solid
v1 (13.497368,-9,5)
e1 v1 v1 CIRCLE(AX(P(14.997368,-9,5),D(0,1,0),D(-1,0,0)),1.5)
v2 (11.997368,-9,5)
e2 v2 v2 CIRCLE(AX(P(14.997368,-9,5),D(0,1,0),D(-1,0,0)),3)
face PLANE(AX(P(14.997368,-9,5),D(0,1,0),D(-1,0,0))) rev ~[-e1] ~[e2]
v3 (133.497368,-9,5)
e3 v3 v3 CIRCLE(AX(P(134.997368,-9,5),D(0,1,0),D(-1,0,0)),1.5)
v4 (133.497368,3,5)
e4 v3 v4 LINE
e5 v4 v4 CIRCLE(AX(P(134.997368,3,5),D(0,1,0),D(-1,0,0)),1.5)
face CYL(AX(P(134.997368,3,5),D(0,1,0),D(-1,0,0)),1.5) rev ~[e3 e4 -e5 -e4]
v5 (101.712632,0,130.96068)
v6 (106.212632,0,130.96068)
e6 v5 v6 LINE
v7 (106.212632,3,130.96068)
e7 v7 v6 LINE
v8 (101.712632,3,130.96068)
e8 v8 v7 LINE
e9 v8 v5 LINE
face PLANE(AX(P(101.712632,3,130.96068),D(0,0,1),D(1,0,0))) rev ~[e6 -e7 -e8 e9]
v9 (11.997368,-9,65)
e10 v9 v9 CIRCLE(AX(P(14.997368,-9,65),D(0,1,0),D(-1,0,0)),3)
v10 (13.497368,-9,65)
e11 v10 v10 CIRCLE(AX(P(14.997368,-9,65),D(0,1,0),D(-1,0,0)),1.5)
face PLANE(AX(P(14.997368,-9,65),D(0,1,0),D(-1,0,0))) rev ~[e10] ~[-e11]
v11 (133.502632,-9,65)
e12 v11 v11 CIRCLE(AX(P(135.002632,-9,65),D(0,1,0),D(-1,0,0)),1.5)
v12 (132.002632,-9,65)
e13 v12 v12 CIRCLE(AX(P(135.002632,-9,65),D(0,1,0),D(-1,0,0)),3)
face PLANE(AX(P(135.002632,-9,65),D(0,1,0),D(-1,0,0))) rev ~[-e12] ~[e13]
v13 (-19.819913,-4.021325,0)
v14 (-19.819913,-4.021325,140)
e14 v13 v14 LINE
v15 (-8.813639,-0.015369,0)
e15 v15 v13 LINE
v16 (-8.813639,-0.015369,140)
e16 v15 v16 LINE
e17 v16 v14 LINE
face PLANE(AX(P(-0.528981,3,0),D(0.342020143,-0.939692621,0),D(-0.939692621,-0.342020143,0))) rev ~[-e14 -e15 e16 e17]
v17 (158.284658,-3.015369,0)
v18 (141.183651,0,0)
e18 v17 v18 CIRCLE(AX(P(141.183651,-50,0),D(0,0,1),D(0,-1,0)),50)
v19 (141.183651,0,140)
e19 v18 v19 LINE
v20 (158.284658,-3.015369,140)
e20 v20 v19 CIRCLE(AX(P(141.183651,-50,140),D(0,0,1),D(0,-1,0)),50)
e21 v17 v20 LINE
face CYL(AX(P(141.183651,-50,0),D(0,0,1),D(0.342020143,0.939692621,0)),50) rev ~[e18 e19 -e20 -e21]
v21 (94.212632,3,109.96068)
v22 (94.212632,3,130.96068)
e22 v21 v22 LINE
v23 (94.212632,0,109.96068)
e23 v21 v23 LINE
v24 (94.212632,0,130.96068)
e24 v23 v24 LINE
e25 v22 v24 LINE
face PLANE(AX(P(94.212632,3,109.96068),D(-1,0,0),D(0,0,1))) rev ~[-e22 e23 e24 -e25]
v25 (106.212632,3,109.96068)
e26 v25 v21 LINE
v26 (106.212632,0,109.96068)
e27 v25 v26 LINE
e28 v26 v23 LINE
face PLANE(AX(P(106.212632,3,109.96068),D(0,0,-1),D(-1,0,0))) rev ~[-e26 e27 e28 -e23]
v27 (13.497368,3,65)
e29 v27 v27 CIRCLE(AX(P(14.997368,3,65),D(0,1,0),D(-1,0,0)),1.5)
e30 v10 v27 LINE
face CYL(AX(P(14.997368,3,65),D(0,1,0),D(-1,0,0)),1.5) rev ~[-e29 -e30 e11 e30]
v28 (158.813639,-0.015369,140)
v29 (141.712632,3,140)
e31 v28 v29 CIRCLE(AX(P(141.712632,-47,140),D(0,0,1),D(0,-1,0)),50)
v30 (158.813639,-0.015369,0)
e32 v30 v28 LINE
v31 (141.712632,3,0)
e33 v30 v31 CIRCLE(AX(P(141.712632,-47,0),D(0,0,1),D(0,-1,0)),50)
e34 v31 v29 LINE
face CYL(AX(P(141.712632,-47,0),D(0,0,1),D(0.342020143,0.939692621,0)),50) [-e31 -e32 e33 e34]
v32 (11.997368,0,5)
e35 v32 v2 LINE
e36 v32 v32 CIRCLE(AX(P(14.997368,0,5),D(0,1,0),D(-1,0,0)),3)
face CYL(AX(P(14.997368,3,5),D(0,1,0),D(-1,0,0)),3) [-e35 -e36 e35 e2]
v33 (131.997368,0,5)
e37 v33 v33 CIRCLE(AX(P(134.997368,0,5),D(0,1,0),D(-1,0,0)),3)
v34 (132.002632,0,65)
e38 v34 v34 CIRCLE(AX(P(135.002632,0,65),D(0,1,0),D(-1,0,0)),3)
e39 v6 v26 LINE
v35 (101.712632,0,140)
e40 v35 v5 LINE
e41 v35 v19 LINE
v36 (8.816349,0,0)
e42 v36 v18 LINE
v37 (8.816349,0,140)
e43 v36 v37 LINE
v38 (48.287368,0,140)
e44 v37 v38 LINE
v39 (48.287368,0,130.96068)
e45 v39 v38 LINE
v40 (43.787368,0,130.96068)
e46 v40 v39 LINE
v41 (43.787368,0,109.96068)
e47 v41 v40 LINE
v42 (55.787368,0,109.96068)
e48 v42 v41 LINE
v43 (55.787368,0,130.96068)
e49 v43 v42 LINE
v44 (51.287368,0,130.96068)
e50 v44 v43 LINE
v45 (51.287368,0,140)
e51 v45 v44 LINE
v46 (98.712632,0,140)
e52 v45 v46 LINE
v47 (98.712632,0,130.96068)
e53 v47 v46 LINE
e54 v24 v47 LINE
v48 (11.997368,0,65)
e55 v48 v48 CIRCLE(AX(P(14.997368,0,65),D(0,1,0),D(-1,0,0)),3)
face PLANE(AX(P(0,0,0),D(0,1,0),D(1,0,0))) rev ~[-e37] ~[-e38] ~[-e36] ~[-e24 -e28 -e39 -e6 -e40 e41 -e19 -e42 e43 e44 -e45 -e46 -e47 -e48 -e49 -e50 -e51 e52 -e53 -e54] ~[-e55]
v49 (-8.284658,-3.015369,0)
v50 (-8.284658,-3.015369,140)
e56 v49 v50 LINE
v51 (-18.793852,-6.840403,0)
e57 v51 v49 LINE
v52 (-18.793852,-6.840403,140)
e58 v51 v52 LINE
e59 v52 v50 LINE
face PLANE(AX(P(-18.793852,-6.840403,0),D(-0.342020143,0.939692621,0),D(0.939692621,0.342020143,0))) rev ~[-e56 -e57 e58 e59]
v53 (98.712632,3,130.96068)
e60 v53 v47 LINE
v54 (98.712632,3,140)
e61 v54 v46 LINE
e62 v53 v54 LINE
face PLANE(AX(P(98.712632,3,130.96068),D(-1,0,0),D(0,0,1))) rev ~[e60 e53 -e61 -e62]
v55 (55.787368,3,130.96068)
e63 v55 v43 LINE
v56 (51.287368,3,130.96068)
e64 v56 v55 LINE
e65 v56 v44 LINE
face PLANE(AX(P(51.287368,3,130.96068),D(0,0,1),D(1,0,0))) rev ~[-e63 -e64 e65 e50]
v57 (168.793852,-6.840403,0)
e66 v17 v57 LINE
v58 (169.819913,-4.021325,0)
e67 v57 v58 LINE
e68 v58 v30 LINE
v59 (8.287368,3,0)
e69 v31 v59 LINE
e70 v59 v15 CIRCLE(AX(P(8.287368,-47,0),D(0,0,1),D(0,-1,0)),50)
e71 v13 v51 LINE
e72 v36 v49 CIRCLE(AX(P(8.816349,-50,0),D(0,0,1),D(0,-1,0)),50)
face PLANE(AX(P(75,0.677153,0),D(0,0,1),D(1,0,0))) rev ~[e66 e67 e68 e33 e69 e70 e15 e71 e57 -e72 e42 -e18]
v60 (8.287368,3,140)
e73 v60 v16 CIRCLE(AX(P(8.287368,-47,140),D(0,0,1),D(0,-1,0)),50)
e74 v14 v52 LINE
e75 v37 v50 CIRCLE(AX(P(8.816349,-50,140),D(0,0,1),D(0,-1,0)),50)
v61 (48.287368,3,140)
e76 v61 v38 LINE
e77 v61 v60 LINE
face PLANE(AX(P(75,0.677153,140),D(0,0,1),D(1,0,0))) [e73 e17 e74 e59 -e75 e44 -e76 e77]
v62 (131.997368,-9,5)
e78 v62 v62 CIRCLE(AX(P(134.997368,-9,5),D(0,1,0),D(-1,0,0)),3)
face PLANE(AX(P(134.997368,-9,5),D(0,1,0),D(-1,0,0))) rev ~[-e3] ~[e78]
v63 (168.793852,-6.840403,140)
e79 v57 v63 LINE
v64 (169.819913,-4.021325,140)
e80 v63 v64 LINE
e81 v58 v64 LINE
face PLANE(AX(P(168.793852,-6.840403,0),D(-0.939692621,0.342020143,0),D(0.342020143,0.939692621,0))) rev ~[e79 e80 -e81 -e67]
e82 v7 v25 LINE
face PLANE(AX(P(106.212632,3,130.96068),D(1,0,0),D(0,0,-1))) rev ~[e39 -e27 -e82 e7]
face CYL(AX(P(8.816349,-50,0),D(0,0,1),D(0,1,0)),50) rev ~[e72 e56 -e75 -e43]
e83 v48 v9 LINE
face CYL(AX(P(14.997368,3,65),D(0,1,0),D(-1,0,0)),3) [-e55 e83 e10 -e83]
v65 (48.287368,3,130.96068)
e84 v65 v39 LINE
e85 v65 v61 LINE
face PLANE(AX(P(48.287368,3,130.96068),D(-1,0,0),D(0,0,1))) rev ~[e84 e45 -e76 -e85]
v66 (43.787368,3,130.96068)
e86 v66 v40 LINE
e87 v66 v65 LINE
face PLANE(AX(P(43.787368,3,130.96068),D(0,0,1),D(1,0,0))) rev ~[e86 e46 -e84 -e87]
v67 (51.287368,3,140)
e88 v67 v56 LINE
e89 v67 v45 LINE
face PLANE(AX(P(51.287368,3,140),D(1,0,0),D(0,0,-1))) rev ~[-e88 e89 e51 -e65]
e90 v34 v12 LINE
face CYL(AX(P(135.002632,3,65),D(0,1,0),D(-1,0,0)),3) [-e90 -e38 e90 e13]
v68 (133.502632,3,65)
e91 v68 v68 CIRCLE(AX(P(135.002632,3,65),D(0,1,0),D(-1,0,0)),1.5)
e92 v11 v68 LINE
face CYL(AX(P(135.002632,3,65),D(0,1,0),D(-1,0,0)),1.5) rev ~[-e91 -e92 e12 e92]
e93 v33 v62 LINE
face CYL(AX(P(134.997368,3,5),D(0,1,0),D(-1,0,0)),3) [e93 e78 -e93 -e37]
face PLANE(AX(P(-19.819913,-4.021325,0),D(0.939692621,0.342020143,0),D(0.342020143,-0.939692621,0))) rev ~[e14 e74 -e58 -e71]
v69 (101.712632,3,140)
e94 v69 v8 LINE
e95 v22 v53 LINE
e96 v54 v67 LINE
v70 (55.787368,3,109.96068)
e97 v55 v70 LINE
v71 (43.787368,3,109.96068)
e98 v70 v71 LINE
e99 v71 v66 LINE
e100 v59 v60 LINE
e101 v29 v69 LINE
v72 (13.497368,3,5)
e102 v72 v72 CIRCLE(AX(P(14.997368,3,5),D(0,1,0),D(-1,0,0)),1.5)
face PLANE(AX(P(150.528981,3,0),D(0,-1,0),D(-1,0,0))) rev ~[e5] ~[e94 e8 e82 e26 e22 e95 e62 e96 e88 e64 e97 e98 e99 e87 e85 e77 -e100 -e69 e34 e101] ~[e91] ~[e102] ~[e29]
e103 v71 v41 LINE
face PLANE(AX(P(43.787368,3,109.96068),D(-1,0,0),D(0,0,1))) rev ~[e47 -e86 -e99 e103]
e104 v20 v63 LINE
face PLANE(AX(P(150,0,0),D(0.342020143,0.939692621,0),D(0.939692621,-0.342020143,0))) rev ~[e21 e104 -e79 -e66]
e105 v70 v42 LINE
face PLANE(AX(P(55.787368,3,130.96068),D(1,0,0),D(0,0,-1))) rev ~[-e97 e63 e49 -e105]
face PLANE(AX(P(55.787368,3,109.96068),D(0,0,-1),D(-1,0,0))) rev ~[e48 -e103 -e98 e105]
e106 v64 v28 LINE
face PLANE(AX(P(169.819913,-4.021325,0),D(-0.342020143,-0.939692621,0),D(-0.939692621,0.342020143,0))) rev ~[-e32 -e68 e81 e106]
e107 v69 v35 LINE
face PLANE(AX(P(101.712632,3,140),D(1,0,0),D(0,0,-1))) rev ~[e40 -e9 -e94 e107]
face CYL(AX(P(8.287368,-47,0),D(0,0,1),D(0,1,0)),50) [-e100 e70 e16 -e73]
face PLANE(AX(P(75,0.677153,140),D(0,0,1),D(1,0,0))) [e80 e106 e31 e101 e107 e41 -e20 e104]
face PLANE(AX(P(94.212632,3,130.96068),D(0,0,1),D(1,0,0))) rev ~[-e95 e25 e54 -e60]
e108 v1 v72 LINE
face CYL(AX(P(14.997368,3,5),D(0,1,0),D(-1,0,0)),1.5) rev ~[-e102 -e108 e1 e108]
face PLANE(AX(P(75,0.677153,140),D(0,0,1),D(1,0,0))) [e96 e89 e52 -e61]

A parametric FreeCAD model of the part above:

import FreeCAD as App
import Part
import Sketcher
Q = App.Units.Quantity


def edges_at(feature, points):
    """Names of the edges that pass closest to the given points."""
    edges = feature.Shape.Edges
    near = lambda p: min(range(len(edges)), key=lambda i: edges[i].distToShape(Part.Vertex(*p))[0])
    return sorted({f"Edge{near(p) + 1}" for p in points})


def add_polygon(sketch, points):
    """Adds a closed chain of lines whose ends are joined by coincident constraints."""
    first, n = sketch.GeometryCount, len(points)
    for a, b in zip(points, points[1:] + points[:1]):
        sketch.addGeometry(Part.LineSegment(App.Vector(*a, 0), App.Vector(*b, 0)), False)
    for i in range(n):
        sketch.addConstraint(Sketcher.Constraint("Coincident", first + i, 2, first + (i + 1) % n, 1))

doc = App.newDocument("Part")
params = doc.addObject("Spreadsheet::Sheet", "Params")
for row, (alias, value) in enumerate([
    ("sketch1_width", "150 mm"),
    ("sketch1_length", "20 mm"),
    ("sketch1_length2", "3 mm"),
    ("pad1_length", "140 mm"),
    ("fillet_radius", "50 mm"),
    ("fillet2_radius", "50 mm"),
    ("sketch2_width", "12 mm"),
    ("sketch2_width2", "3 mm"),
    ("sketch2_height", "21 mm"),
    ("pocket1_length", "150 mm"),
    ("sketch3_diameter", "3 mm"),
    ("pocket2_length", "10 mm"),
    ("sketch4_diameter", "6 mm"),
    ("sketch4_diameter2", "3 mm"),
    ("pad2_length", "12 mm"),
], start=1):
    params.set(f"A{row}", alias)
    params.set(f"B{row}", "=" + value)
    params.setAlias(f"B{row}", alias)

body = doc.addObject("PartDesign::Body", "Body")

sketch1 = body.newObject("Sketcher::SketchObject", "Sketch")
sketch1.AttachmentSupport = (doc.getObject("XY_Plane"), [""])
sketch1.MapMode = "FlatFace"
add_polygon(sketch1, [(0, 0), (150, 0), (168.8, -6.8), (169.8, -4), (150.5, 3), (-0.5, 3), (-19.8, -4), (-18.8, -6.8)])
sketch1.addConstraint([
    Sketcher.Constraint("Horizontal", 0),
    Sketcher.Constraint("Horizontal", 4),
    Sketcher.Constraint("Coincident", 7, 2, -1, 1),
    Sketcher.Constraint("Perpendicular", 1, 2),
    Sketcher.Constraint("Perpendicular", 2, 3),
    Sketcher.Constraint("Perpendicular", 5, 6),
    Sketcher.Constraint("Perpendicular", 6, 7),
    Sketcher.Constraint("Horizontal", 2, 2, 5, 2),
    Sketcher.Constraint("Horizontal", 1, 2, 6, 2),
    Sketcher.Constraint("Equal", 3, 5),
    Sketcher.Constraint("DistanceX", 0, 1, 0, 2, 150.0),
    Sketcher.Constraint("Angle", 1, Q("-20 deg")),
    Sketcher.Constraint("Distance", 1, 20.0),
    Sketcher.Constraint("Distance", 2, 3.0),
    Sketcher.Constraint("DistanceY", -1, 1, 3, 2, 3.0),
])
sketch1.setExpression("Constraints[18]", "Params.sketch1_width")
sketch1.setExpression("Constraints[20]", "Params.sketch1_length")
sketch1.setExpression("Constraints[21]", "Params.sketch1_length2")
pad1 = body.newObject("PartDesign::Pad", "Pad")
pad1.Profile = sketch1
pad1.setExpression("Length", "Params.pad1_length")
doc.recompute()

fillet = body.newObject("PartDesign::Fillet", "Fillet")
fillet.Base = (pad1, edges_at(pad1, [(-0.529, 3, 70), (150.529, 3, 70)]))
fillet.setExpression("Radius", "Params.fillet_radius")
doc.recompute()

fillet2 = body.newObject("PartDesign::Fillet", "Fillet001")
fillet2.Base = (fillet, edges_at(fillet, [(150, 0, 70), (0, 0, 70)]))
fillet2.setExpression("Radius", "Params.fillet2_radius")

sketch2 = body.newObject("Sketcher::SketchObject", "Sketch001")
sketch2.AttachmentSupport = (doc.getObject("XZ_Plane"), [""])
sketch2.MapMode = "FlatFace"
sketch2.AttachmentOffset = App.Placement(App.Vector(0, 0, -3), App.Rotation())
add_polygon(sketch2, [(101.7, 140), (101.7, 131), (106.2, 131), (106.2, 110), (94.2, 110), (94.2, 131), (98.7, 131), (98.7, 140)])
add_polygon(sketch2, [(51.3, 140), (51.3, 131), (55.8, 131), (55.8, 110), (43.8, 110), (43.8, 131), (48.3, 131), (48.3, 140)])
sketch2.addConstraint([
    Sketcher.Constraint("Vertical", 0),
    Sketcher.Constraint("Horizontal", 1),
    Sketcher.Constraint("Vertical", 2),
    Sketcher.Constraint("Horizontal", 3),
    Sketcher.Constraint("Vertical", 4),
    Sketcher.Constraint("Horizontal", 5),
    Sketcher.Constraint("Vertical", 6),
    Sketcher.Constraint("Horizontal", 7),
    Sketcher.Constraint("Vertical", 8),
    Sketcher.Constraint("Horizontal", 9),
    Sketcher.Constraint("Vertical", 10),
    Sketcher.Constraint("Horizontal", 11),
    Sketcher.Constraint("Vertical", 12),
    Sketcher.Constraint("Horizontal", 13),
    Sketcher.Constraint("Vertical", 14),
    Sketcher.Constraint("Horizontal", 15),
    Sketcher.Constraint("Horizontal", 1, 2, 4, 2),
    Sketcher.Constraint("Horizontal", 5, 2, 8, 2),
    Sketcher.Constraint("Horizontal", 3, 2, 10, 2),
    Sketcher.Constraint("Horizontal", 9, 2, 12, 2),
    Sketcher.Constraint("Horizontal", 7, 2, 14, 2),
    Sketcher.Constraint("Equal", 1, 5),
    Sketcher.Constraint("Equal", 5, 9),
    Sketcher.Constraint("Equal", 3, 11),
    Sketcher.Constraint("Equal", 9, 13),
    Sketcher.Constraint("DistanceX", 3, 2, 3, 1, 12.0),
    Sketcher.Constraint("DistanceX", 7, 1, 7, 2, 3.0),
    Sketcher.Constraint("DistanceY", 2, 2, 2, 1, 21.0),
    Sketcher.Constraint("DistanceY", -1, 1, 6, 2, 140.0),
    Sketcher.Constraint("DistanceY", 0, 2, 0, 1, 9.03932),
    Sketcher.Constraint("DistanceX", -1, 1, 0, 2, 101.712632),
    Sketcher.Constraint("DistanceX", -1, 1, 8, 2, 51.287368),
])
sketch2.setExpression("Constraints[41]", "Params.sketch2_width")
sketch2.setExpression("Constraints[42]", "Params.sketch2_width2")
sketch2.setExpression("Constraints[43]", "Params.sketch2_height")
pocket1 = body.newObject("PartDesign::Pocket", "Pocket")
pocket1.Profile = sketch2
pocket1.setExpression("Length", "Params.pocket1_length")
pocket1.Reversed = True

sketch3 = body.newObject("Sketcher::SketchObject", "Sketch002")
sketch3.AttachmentSupport = (doc.getObject("XZ_Plane"), [""])
sketch3.MapMode = "FlatFace"
sketch3.AttachmentOffset = App.Placement(App.Vector(0, 0, -3), App.Rotation())
sketch3.addGeometry([
    Part.Circle(App.Vector(135, 5, 0), App.Vector(0, 0, 1), 1.5),
    Part.Circle(App.Vector(15, 5, 0), App.Vector(0, 0, 1), 1.5),
    Part.Circle(App.Vector(135, 65, 0), App.Vector(0, 0, 1), 1.5),
    Part.Circle(App.Vector(15, 65, 0), App.Vector(0, 0, 1), 1.5),
], False)
sketch3.addConstraint([
    Sketcher.Constraint("Equal", 0, 1),
    Sketcher.Constraint("Equal", 1, 2),
    Sketcher.Constraint("Equal", 2, 3),
    Sketcher.Constraint("Horizontal", 0, 3, 1, 3),
    Sketcher.Constraint("Horizontal", 2, 3, 3, 3),
    Sketcher.Constraint("Vertical", 1, 3, 3, 3),
    Sketcher.Constraint("Diameter", 0, 3.0),
    Sketcher.Constraint("DistanceY", -1, 1, 0, 3, 5.0),
    Sketcher.Constraint("DistanceY", -1, 1, 2, 3, 65.0),
    Sketcher.Constraint("DistanceX", 1, 3, 0, 3, 120.0),
    Sketcher.Constraint("DistanceX", -1, 1, 0, 3, 134.997368),
    Sketcher.Constraint("DistanceX", -1, 1, 2, 3, 135.002632),
])
sketch3.setExpression("Constraints[6]", "Params.sketch3_diameter")
pocket2 = body.newObject("PartDesign::Pocket", "Pocket001")
pocket2.Profile = sketch3
pocket2.setExpression("Length", "Params.pocket2_length")
pocket2.Reversed = True

sketch4 = body.newObject("Sketcher::SketchObject", "Sketch003")
sketch4.AttachmentSupport = (doc.getObject("XZ_Plane"), [""])
sketch4.MapMode = "FlatFace"
sketch4.AttachmentOffset = App.Placement(App.Vector(0, 0, -3), App.Rotation())
sketch4.addGeometry([
    Part.Circle(App.Vector(15, 5, 0), App.Vector(0, 0, 1), 3),
    Part.Circle(App.Vector(15, 5, 0), App.Vector(0, 0, 1), 1.5),
    Part.Circle(App.Vector(135, 5, 0), App.Vector(0, 0, 1), 3),
    Part.Circle(App.Vector(135, 5, 0), App.Vector(0, 0, 1), 1.5),
    Part.Circle(App.Vector(135, 65, 0), App.Vector(0, 0, 1), 3),
    Part.Circle(App.Vector(135, 65, 0), App.Vector(0, 0, 1), 1.5),
    Part.Circle(App.Vector(15, 65, 0), App.Vector(0, 0, 1), 3),
    Part.Circle(App.Vector(15, 65, 0), App.Vector(0, 0, 1), 1.5),
], False)
sketch4.addConstraint([
    Sketcher.Constraint("Coincident", 1, 3, 0, 3),
    Sketcher.Constraint("Coincident", 3, 3, 2, 3),
    Sketcher.Constraint("Coincident", 5, 3, 4, 3),
    Sketcher.Constraint("Coincident", 7, 3, 6, 3),
    Sketcher.Constraint("Equal", 0, 2),
    Sketcher.Constraint("Equal", 1, 3),
    Sketcher.Constraint("Equal", 2, 4),
    Sketcher.Constraint("Equal", 3, 5),
    Sketcher.Constraint("Equal", 4, 6),
    Sketcher.Constraint("Equal", 5, 7),
    Sketcher.Constraint("Horizontal", 1, 3, 2, 3),
    Sketcher.Constraint("Horizontal", 5, 3, 6, 3),
    Sketcher.Constraint("Vertical", 1, 3, 6, 3),
    Sketcher.Constraint("Diameter", 0, 6.0),
    Sketcher.Constraint("Diameter", 1, 3.0),
    Sketcher.Constraint("DistanceY", -1, 1, 0, 3, 5.0),
    Sketcher.Constraint("DistanceY", -1, 1, 4, 3, 65.0),
    Sketcher.Constraint("DistanceX", 0, 3, 2, 3, 120.0),
    Sketcher.Constraint("DistanceX", -1, 1, 0, 3, 14.997368),
    Sketcher.Constraint("DistanceX", -1, 1, 4, 3, 135.002632),
])
sketch4.setExpression("Constraints[13]", "Params.sketch4_diameter")
sketch4.setExpression("Constraints[14]", "Params.sketch4_diameter2")
pad2 = body.newObject("PartDesign::Pad", "Pad001")
pad2.Profile = sketch4
pad2.setExpression("Length", "Params.pad2_length")

doc.recompute()
